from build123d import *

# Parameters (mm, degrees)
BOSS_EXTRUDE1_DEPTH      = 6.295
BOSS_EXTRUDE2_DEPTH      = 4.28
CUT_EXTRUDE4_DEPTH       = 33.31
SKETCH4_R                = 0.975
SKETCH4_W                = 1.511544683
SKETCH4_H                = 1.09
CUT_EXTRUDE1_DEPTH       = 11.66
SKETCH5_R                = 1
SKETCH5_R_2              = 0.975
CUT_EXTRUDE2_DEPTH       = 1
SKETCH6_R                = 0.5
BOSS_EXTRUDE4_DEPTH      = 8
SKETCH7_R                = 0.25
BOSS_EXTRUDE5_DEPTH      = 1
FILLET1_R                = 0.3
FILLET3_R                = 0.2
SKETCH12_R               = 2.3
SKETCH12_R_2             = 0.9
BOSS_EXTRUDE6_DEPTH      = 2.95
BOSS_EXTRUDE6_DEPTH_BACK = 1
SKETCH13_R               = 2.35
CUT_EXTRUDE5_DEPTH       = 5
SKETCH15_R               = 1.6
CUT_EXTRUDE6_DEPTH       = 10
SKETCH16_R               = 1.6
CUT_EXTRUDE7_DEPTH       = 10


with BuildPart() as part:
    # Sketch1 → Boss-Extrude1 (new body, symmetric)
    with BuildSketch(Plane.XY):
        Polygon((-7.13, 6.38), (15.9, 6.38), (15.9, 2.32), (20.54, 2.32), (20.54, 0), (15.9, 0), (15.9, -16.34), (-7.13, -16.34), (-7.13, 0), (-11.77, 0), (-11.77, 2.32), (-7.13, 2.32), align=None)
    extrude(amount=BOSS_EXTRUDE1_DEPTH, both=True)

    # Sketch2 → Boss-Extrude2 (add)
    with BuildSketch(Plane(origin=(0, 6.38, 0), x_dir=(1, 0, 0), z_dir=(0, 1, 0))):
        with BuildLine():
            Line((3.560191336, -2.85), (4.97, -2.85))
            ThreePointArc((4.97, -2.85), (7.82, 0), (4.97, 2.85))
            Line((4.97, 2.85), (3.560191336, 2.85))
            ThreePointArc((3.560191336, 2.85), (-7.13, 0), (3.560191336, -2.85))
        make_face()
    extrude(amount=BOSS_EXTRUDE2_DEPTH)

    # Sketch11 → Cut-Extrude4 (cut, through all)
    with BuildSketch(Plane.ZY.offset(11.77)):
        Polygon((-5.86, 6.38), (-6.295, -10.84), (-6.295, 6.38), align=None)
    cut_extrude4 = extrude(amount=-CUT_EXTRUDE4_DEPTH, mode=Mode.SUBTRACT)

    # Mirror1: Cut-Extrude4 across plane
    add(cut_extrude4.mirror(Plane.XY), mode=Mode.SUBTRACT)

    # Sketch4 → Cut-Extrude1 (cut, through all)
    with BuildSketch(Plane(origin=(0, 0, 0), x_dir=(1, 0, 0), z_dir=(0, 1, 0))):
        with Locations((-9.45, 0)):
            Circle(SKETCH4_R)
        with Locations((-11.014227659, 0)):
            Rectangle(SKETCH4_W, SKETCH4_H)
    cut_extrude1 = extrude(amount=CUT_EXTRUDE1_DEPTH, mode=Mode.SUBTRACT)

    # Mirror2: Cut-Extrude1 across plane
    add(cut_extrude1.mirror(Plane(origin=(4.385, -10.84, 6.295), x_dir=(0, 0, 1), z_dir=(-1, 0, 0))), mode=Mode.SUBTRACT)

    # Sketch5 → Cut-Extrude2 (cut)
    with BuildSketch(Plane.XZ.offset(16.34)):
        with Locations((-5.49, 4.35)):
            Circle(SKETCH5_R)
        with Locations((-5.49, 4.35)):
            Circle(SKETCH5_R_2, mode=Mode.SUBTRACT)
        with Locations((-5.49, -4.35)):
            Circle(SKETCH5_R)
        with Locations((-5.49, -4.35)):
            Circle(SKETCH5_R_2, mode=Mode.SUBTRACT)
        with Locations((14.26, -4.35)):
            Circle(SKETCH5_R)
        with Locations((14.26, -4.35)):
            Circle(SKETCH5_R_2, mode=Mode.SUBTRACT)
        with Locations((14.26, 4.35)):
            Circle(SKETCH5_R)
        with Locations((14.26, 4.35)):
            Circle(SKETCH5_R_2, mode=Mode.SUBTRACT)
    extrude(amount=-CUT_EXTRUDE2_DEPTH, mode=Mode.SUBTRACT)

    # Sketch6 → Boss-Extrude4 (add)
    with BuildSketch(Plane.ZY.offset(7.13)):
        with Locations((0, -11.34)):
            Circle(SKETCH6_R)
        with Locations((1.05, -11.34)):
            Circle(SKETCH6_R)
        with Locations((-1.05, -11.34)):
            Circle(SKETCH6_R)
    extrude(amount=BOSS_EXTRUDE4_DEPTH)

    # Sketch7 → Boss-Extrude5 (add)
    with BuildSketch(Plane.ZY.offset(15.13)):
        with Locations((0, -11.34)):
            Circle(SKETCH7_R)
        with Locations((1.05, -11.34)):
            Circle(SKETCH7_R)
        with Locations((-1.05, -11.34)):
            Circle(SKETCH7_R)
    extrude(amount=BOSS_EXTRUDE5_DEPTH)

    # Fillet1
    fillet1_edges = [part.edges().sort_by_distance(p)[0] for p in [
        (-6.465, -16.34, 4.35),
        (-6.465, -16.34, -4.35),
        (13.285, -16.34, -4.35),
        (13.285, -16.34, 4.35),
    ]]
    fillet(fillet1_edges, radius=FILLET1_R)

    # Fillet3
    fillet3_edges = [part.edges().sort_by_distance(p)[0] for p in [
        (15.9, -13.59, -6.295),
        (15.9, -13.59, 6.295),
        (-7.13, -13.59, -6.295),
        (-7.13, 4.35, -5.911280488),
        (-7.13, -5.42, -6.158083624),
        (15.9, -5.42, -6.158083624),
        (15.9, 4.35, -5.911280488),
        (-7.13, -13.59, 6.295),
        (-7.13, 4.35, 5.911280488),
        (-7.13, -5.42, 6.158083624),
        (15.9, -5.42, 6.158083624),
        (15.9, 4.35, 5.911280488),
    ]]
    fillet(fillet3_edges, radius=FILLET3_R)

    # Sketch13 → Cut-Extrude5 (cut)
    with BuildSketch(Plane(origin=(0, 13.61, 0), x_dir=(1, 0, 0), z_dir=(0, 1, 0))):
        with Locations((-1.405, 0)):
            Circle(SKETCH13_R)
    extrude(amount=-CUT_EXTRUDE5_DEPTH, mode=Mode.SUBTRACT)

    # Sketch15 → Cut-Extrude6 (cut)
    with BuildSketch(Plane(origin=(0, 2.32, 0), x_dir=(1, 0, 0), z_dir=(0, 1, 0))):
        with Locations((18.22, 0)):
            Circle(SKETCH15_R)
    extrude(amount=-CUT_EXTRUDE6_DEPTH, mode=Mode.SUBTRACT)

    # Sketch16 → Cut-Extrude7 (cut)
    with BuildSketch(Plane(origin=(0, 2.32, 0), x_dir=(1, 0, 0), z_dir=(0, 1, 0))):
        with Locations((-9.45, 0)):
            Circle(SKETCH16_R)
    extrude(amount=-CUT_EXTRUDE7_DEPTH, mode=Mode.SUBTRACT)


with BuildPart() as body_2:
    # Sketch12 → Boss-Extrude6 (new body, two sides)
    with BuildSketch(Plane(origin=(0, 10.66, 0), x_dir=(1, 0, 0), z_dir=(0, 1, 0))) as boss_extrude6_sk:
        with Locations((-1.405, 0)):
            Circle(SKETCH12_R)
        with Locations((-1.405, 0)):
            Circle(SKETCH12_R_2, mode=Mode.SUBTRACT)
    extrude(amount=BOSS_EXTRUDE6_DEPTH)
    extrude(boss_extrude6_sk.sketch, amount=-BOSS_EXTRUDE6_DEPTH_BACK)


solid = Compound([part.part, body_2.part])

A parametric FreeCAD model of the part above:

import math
import FreeCAD as App
import Part
import Sketcher


def edges_at(feature, points):
    """Names of the edges that pass closest to the given points."""
    edges = feature.Shape.Edges
    near = lambda p: min(range(len(edges)), key=lambda i: edges[i].distToShape(Part.Vertex(*p))[0])
    return sorted({f"Edge{near(p) + 1}" for p in points})

doc = App.newDocument("Part")
body = doc.addObject("PartDesign::Body", "Body")

# Sketch on XY plane
sketch1 = body.newObject("Sketcher::SketchObject", "Sketch")
sketch1.AttachmentSupport = (doc.getObject("XY_Plane"), [""])
sketch1.MapMode = "FlatFace"
sketch1.addGeometry([
    Part.LineSegment(App.Vector(15.9, 6.4, 0), App.Vector(-7.1, 6.4, 0)),  # 0
    Part.LineSegment(App.Vector(-7.1, 6.4, 0), App.Vector(-7.1, 2.3, 0)),  # 1
    Part.LineSegment(App.Vector(-7.1, 2.3, 0), App.Vector(-11.8, 2.3, 0)),  # 2
    Part.LineSegment(App.Vector(-11.8, 2.3, 0), App.Vector(-11.8, 0, 0)),  # 3
    Part.LineSegment(App.Vector(-11.8, 0, 0), App.Vector(-7.1, 0, 0)),  # 4
    Part.LineSegment(App.Vector(-7.1, 0, 0), App.Vector(-7.1, -16.3, 0)),  # 5
    Part.LineSegment(App.Vector(-7.1, -16.3, 0), App.Vector(15.9, -16.3, 0)),  # 6
    Part.LineSegment(App.Vector(15.9, -16.3, 0), App.Vector(15.9, 0, 0)),  # 7
    Part.LineSegment(App.Vector(15.9, 0, 0), App.Vector(20.5, 0, 0)),  # 8
    Part.LineSegment(App.Vector(20.5, 0, 0), App.Vector(20.5, 2.3, 0)),  # 9
    Part.LineSegment(App.Vector(20.5, 2.3, 0), App.Vector(15.9, 2.3, 0)),  # 10
    Part.LineSegment(App.Vector(15.9, 2.3, 0), App.Vector(15.9, 6.4, 0)),  # 11
], False)
sketch1.addConstraint([
    Sketcher.Constraint("Coincident", 0, 2, 1, 1),
    Sketcher.Constraint("Coincident", 1, 2, 2, 1),
    Sketcher.Constraint("Coincident", 2, 2, 3, 1),
    Sketcher.Constraint("Coincident", 3, 2, 4, 1),
    Sketcher.Constraint("Coincident", 4, 2, 5, 1),
    Sketcher.Constraint("Coincident", 5, 2, 6, 1),
    Sketcher.Constraint("Coincident", 6, 2, 7, 1),
    Sketcher.Constraint("Coincident", 7, 2, 8, 1),
    Sketcher.Constraint("Coincident", 8, 2, 9, 1),
    Sketcher.Constraint("Coincident", 9, 2, 10, 1),
    Sketcher.Constraint("Coincident", 10, 2, 11, 1),
    Sketcher.Constraint("Coincident", 11, 2, 0, 1),
    Sketcher.Constraint("Horizontal", 0),
    Sketcher.Constraint("Vertical", 1),
    Sketcher.Constraint("Horizontal", 2),
    Sketcher.Constraint("Vertical", 3),
    Sketcher.Constraint("Horizontal", 4),
    Sketcher.Constraint("Vertical", 5),
    Sketcher.Constraint("Horizontal", 6),
    Sketcher.Constraint("Vertical", 7),
    Sketcher.Constraint("Horizontal", 8),
    Sketcher.Constraint("Vertical", 9),
    Sketcher.Constraint("Horizontal", 10),
    Sketcher.Constraint("Vertical", 11),
    Sketcher.Constraint("PointOnObject", 3, 2, -1),
    Sketcher.Constraint("PointOnObject", 7, 2, -1),
    Sketcher.Constraint("Horizontal", 2, 2, 9, 2),
    Sketcher.Constraint("Vertical", 1, 2, 4, 2),
    Sketcher.Constraint("Vertical", 7, 2, 10, 2),
    Sketcher.Constraint("Equal", 4, 8),
    Sketcher.Constraint("DistanceX", 0, 2, 0, 1, 23.03),
    Sketcher.Constraint("DistanceX", 2, 2, 2, 1, 4.64),
    Sketcher.Constraint("DistanceY", 1, 2, 1, 1, 4.06),
    Sketcher.Constraint("DistanceY", 3, 2, 3, 1, 2.32),
    Sketcher.Constraint("DistanceY", 5, 2, 5, 1, 16.34),
    Sketcher.Constraint("DistanceX", -1, 1, 6, 2, 15.9),
])
pad1 = body.newObject("PartDesign::Pad", "Pad")
pad1.Profile = sketch1
pad1.Length = 12.59
pad1.Midplane = True

# Sketch on XZ plane
sketch2 = body.newObject("Sketcher::SketchObject", "Sketch001")
sketch2.AttachmentSupport = (doc.getObject("XZ_Plane"), [""])
sketch2.MapMode = "FlatFace"
sketch2.AttachmentOffset = App.Placement(App.Vector(0, 0, -6.38), App.Rotation())
sketch2.addGeometry([
    Part.LineSegment(App.Vector(3.6, 2.9, 0), App.Vector(5, 2.9, 0)),
    Part.ArcOfCircle(Part.Circle(App.Vector(5, 0, 0), App.Vector(0, 0, 1), 2.9), math.radians(-90), math.radians(90)),
    Part.LineSegment(App.Vector(5, -2.9, 0), App.Vector(3.6, -2.9, 0)),
    Part.ArcOfCircle(Part.Circle(App.Vector(-1.4, 0, 0), App.Vector(0, 0, 1), 5.7), math.radians(30), math.radians(330)),
], False)
sketch2.addConstraint([
    Sketcher.Constraint("Tangent", 0, 2, 1, 2),
    Sketcher.Constraint("Tangent", 1, 1, 2, 1),
    Sketcher.Constraint("Coincident", 2, 2, 3, 2),
    Sketcher.Constraint("Coincident", 3, 1, 0, 1),
    Sketcher.Constraint("Horizontal", 0),
    Sketcher.Constraint("Horizontal", 2),
    Sketcher.Constraint("Symmetric", 2, 2, 3, 1, -1),
    Sketcher.Constraint("Radius", 1, 2.85),
    Sketcher.Constraint("Radius", 3, 5.725),
    Sketcher.Constraint("DistanceX", -1, 1, 1, 3, 4.97),
    Sketcher.Constraint("DistanceX", 3, 3, -1, 1, 1.405),
])
pad2 = body.newObject("PartDesign::Pad", "Pad001")
pad2.Profile = sketch2
pad2.Length = 4.28
pad2.Reversed = True

# Sketch on YZ plane
sketch3 = body.newObject("Sketcher::SketchObject", "Sketch002")
sketch3.AttachmentSupport = (doc.getObject("YZ_Plane"), [""])
sketch3.MapMode = "FlatFace"
sketch3.AttachmentOffset = App.Placement(App.Vector(0, 0, -11.77), App.Rotation())
sketch3.addGeometry([
    Part.LineSegment(App.Vector(-10.84, -6.29, 0), App.Vector(6.38, -5.86, 0)),
    Part.LineSegment(App.Vector(6.38, -5.86, 0), App.Vector(6.38, -6.29, 0)),
    Part.LineSegment(App.Vector(6.38, -6.29, 0), App.Vector(-10.84, -6.29, 0)),
], False)
sketch3.addConstraint([
    Sketcher.Constraint("Coincident", 0, 2, 1, 1),
    Sketcher.Constraint("Coincident", 1, 2, 2, 1),
    Sketcher.Constraint("Coincident", 2, 2, 0, 1),
    Sketcher.Constraint("Vertical", 1),
    Sketcher.Constraint("Horizontal", 2),
    Sketcher.Constraint("DistanceX", 2, 2, 2, 1, 17.22),
    Sketcher.Constraint("DistanceY", 1, 2, 1, 1, 0.435),
    Sketcher.Constraint("DistanceX", -1, 1, 0, 2, 6.38),
    Sketcher.Constraint("DistanceY", 0, 2, -1, 1, 5.86),
])
pocket1 = body.newObject("PartDesign::Pocket", "Pocket")
pocket1.Profile = sketch3
pocket1.Type = "ThroughAll"
pocket1.Reversed = True
doc.recompute()

mirrored = body.newObject("PartDesign::Mirrored", "Mirrored")
mirrored.Originals = [pocket1]
mirrored.MirrorPlane = (doc.getObject("XY_Plane"), [""])
body.Tip = mirrored

# Sketch on XZ plane
sketch4 = body.newObject("Sketcher::SketchObject", "Sketch003")
sketch4.AttachmentSupport = (doc.getObject("XZ_Plane"), [""])
sketch4.MapMode = "FlatFace"
sketch4.addGeometry([
    Part.ArcOfCircle(Part.Circle(App.Vector(-9.4, 0, 0), App.Vector(0, 0, 1), 1), math.radians(-146), math.radians(146)),
    Part.LineSegment(App.Vector(-10.3, -0.5, 0), App.Vector(-11.8, -0.5, 0)),
    Part.LineSegment(App.Vector(-11.8, -0.5, 0), App.Vector(-11.8, 0.5, 0)),
    Part.LineSegment(App.Vector(-11.8, 0.5, 0), App.Vector(-10.3, 0.5, 0)),
], False)
sketch4.addConstraint([
    Sketcher.Constraint("Coincident", 0, 1, 1, 1),
    Sketcher.Constraint("Coincident", 1, 2, 2, 1),
    Sketcher.Constraint("Coincident", 2, 2, 3, 1),
    Sketcher.Constraint("Coincident", 3, 2, 0, 2),
    Sketcher.Constraint("Horizontal", 1),
    Sketcher.Constraint("Vertical", 2),
    Sketcher.Constraint("Horizontal", 3),
    Sketcher.Constraint("Symmetric", 0, 1, 3, 2, -1),
    Sketcher.Constraint("Radius", 0, 0.975),
    Sketcher.Constraint("DistanceY", 2, 1, 2, 2, 1.09),
    Sketcher.Constraint("DistanceX", 0, 3, -1, 1, 9.45),
    Sketcher.Constraint("DistanceX", 1, 2, -1, 1, 11.77),
])
pocket2 = body.newObject("PartDesign::Pocket", "Pocket001")
pocket2.Profile = sketch4
pocket2.Type = "ThroughAll"
doc.recompute()

datumplane = body.newObject("PartDesign::Plane", "DatumPlane")
datumplane.AttachmentSupport = (doc.getObject("YZ_Plane"), [""])
datumplane.MapMode = "FlatFace"
datumplane.AttachmentOffset = App.Placement(App.Vector(0, 0, 4.385), App.Rotation())
mirrored2 = body.newObject("PartDesign::Mirrored", "Mirrored001")
mirrored2.Originals = [pocket2]
mirrored2.MirrorPlane = (datumplane, [""])
body.Tip = mirrored2

# Sketch on XZ plane
sketch5 = body.newObject("Sketcher::SketchObject", "Sketch004")
sketch5.AttachmentSupport = (doc.getObject("XZ_Plane"), [""])
sketch5.MapMode = "FlatFace"
sketch5.AttachmentOffset = App.Placement(App.Vector(0, 0, 16.34), App.Rotation())
sketch5.addGeometry([
    Part.Circle(App.Vector(-5.5, 4.3, 0), App.Vector(0, 0, 1), 1),  # 0
    Part.Circle(App.Vector(-5.5, 4.3, 0), App.Vector(0, 0, 1), 1),  # 1
    Part.Circle(App.Vector(-5.5, -4.3, 0), App.Vector(0, 0, 1), 1),  # 2
    Part.Circle(App.Vector(-5.5, -4.3, 0), App.Vector(0, 0, 1), 1),  # 3
    Part.Circle(App.Vector(14.3, -4.3, 0), App.Vector(0, 0, 1), 1),  # 4
    Part.Circle(App.Vector(14.3, -4.3, 0), App.Vector(0, 0, 1), 1),  # 5
    Part.Circle(App.Vector(14.3, 4.3, 0), App.Vector(0, 0, 1), 1),  # 6
    Part.Circle(App.Vector(14.3, 4.3, 0), App.Vector(0, 0, 1), 1),  # 7
], False)
sketch5.addConstraint([
    Sketcher.Constraint("Coincident", 1, 3, 0, 3),
    Sketcher.Constraint("Coincident", 3, 3, 2, 3),
    Sketcher.Constraint("Coincident", 5, 3, 4, 3),
    Sketcher.Constraint("Coincident", 7, 3, 6, 3),
    Sketcher.Constraint("Equal", 0, 2),
    Sketcher.Constraint("Equal", 1, 3),
    Sketcher.Constraint("Equal", 2, 4),
    Sketcher.Constraint("Equal", 3, 5),
    Sketcher.Constraint("Equal", 4, 6),
    Sketcher.Constraint("Equal", 5, 7),
    Sketcher.Constraint("Symmetric", 0, 3, 2, 3, -1),
    Sketcher.Constraint("Symmetric", 4, 3, 6, 3, -1),
    Sketcher.Constraint("Horizontal", 3, 3, 4, 3),
    Sketcher.Constraint("Diameter", 0, 2.0),
    Sketcher.Constraint("Diameter", 1, 1.95),
    Sketcher.Constraint("DistanceY", 2, 3, 0, 3, 8.7),
    Sketcher.Constraint("DistanceX", 0, 3, -1, 1, 5.49),
    Sketcher.Constraint("DistanceX", -1, 1, 4, 3, 14.26),
])
pocket3 = body.newObject("PartDesign::Pocket", "Pocket002")
pocket3.Profile = sketch5
pocket3.Length = 1

# Sketch on YZ plane
sketch6 = body.newObject("Sketcher::SketchObject", "Sketch005")
sketch6.AttachmentSupport = (doc.getObject("YZ_Plane"), [""])
sketch6.MapMode = "FlatFace"
sketch6.AttachmentOffset = App.Placement(App.Vector(0, 0, -7.13), App.Rotation())
sketch6.addGeometry([
    Part.Circle(App.Vector(-11.3, 0, 0), App.Vector(0, 0, 1), 0.5),
    Part.Circle(App.Vector(-11.3, 1.1, 0), App.Vector(0, 0, 1), 0.5),
    Part.Circle(App.Vector(-11.3, -1.1, 0), App.Vector(0, 0, 1), 0.5),
], False)
sketch6.addConstraint([
    Sketcher.Constraint("Equal", 0, 1),
    Sketcher.Constraint("Equal", 1, 2),
    Sketcher.Constraint("Symmetric", 1, 3, 2, 3, -1),
    Sketcher.Constraint("PointOnObject", 0, 3, -1),
    Sketcher.Constraint("Vertical", 0, 3, 1, 3),
    Sketcher.Constraint("Diameter", 0, 1.0),
    Sketcher.Constraint("DistanceY", 2, 3, 1, 3, 2.1),
    Sketcher.Constraint("DistanceX", 0, 3, -1, 1, 11.34),
])
pad3 = body.newObject("PartDesign::Pad", "Pad002")
pad3.Profile = sketch6
pad3.Length = 8
pad3.Reversed = True

# Sketch on YZ plane
sketch7 = body.newObject("Sketcher::SketchObject", "Sketch006")
sketch7.AttachmentSupport = (doc.getObject("YZ_Plane"), [""])
sketch7.MapMode = "FlatFace"
sketch7.AttachmentOffset = App.Placement(App.Vector(0, 0, -15.13), App.Rotation())
sketch7.addGeometry([
    Part.Circle(App.Vector(-11.34, 0, 0), App.Vector(0, 0, 1), 0.25),
    Part.Circle(App.Vector(-11.34, 1.05, 0), App.Vector(0, 0, 1), 0.25),
    Part.Circle(App.Vector(-11.34, -1.05, 0), App.Vector(0, 0, 1), 0.25),
], False)
sketch7.addConstraint([
    Sketcher.Constraint("Equal", 0, 1),
    Sketcher.Constraint("Equal", 1, 2),
    Sketcher.Constraint("Symmetric", 1, 3, 2, 3, -1),
    Sketcher.Constraint("PointOnObject", 0, 3, -1),
    Sketcher.Constraint("Vertical", 0, 3, 1, 3),
    Sketcher.Constraint("Diameter", 0, 0.5),
    Sketcher.Constraint("DistanceY", 2, 3, 1, 3, 2.1),
    Sketcher.Constraint("DistanceX", 0, 3, -1, 1, 11.34),
])
pad4 = body.newObject("PartDesign::Pad", "Pad003")
pad4.Profile = sketch7
pad4.Length = 1
pad4.Reversed = True
doc.recompute()

fillet = body.newObject("PartDesign::Fillet", "Fillet")
fillet.Base = (pad4, edges_at(pad4, [
    (-6.465, -16.34, 4.35),
    (-6.465, -16.34, -4.35),
    (13.285, -16.34, -4.35),
    (13.285, -16.34, 4.35),
]))
fillet.Radius = 0.3
doc.recompute()

fillet2 = body.newObject("PartDesign::Fillet", "Fillet001")
fillet2.Base = (fillet, edges_at(fillet, [
    (15.9, -13.59, -6.295),
    (15.9, -13.59, 6.295),
    (-7.13, -13.59, -6.295),
    (-7.13, 4.35, -5.911),
    (-7.13, -5.42, -6.158),
    (15.9, -5.42, -6.158),
    (15.9, 4.35, -5.911),
    (-7.13, -13.59, 6.295),
    (-7.13, 4.35, 5.911),
    (-7.13, -5.42, 6.158),
    (15.9, -5.42, 6.158),
    (15.9, 4.35, 5.911),
]))
fillet2.Radius = 0.2

# Sketch on XZ plane
sketch8 = body.newObject("Sketcher::SketchObject", "Sketch007")
sketch8.AttachmentSupport = (doc.getObject("XZ_Plane"), [""])
sketch8.MapMode = "FlatFace"
sketch8.AttachmentOffset = App.Placement(App.Vector(0, 0, -13.61), App.Rotation())
sketch8.addGeometry(Part.Circle(App.Vector(-1.4, 0, 0), App.Vector(0, 0, 1), 2.4), False)
sketch8.addConstraint([
    Sketcher.Constraint("PointOnObject", 0, 3, -1),
    Sketcher.Constraint("Diameter", 0, 4.7),
    Sketcher.Constraint("DistanceX", 0, 3, -1, 1, 1.405),
])
pocket4 = body.newObject("PartDesign::Pocket", "Pocket003")
pocket4.Profile = sketch8
pocket4.Length = 5
pocket4.Reversed = True

# Sketch on XZ plane
sketch9 = body.newObject("Sketcher::SketchObject", "Sketch008")
sketch9.AttachmentSupport = (doc.getObject("XZ_Plane"), [""])
sketch9.MapMode = "FlatFace"
sketch9.AttachmentOffset = App.Placement(App.Vector(0, 0, -2.32), App.Rotation())
sketch9.addGeometry(Part.Circle(App.Vector(18.2, 0, 0), App.Vector(0, 0, 1), 1.6), False)
sketch9.addConstraint([
    Sketcher.Constraint("PointOnObject", 0, 3, -1),
    Sketcher.Constraint("Diameter", 0, 3.2),
    Sketcher.Constraint("DistanceX", -1, 1, 0, 3, 18.22),
])
pocket5 = body.newObject("PartDesign::Pocket", "Pocket004")
pocket5.Profile = sketch9
pocket5.Length = 10
pocket5.Reversed = True

# Sketch on XZ plane
sketch10 = body.newObject("Sketcher::SketchObject", "Sketch009")
sketch10.AttachmentSupport = (doc.getObject("XZ_Plane"), [""])
sketch10.MapMode = "FlatFace"
sketch10.AttachmentOffset = App.Placement(App.Vector(0, 0, -2.32), App.Rotation())
sketch10.addGeometry(Part.Circle(App.Vector(-9.4, 0, 0), App.Vector(0, 0, 1), 1.6), False)
sketch10.addConstraint([
    Sketcher.Constraint("PointOnObject", 0, 3, -1),
    Sketcher.Constraint("Diameter", 0, 3.2),
    Sketcher.Constraint("DistanceX", 0, 3, -1, 1, 9.45),
])
pocket6 = body.newObject("PartDesign::Pocket", "Pocket005")
pocket6.Profile = sketch10
pocket6.Length = 10
pocket6.Reversed = True
body2 = doc.addObject("PartDesign::Body", "Body001")

# Sketch on XZ plane
sketch11 = body2.newObject("Sketcher::SketchObject", "Sketch010")
sketch11.AttachmentSupport = (doc.getObject("XZ_Plane001"), [""])
sketch11.MapMode = "FlatFace"
sketch11.AttachmentOffset = App.Placement(App.Vector(0, 0, -10.66), App.Rotation())
sketch11.addGeometry([
    Part.Circle(App.Vector(-1.4, 0, 0), App.Vector(0, 0, 1), 2.3),
    Part.Circle(App.Vector(-1.4, 0, 0), App.Vector(0, 0, 1), 0.9),
], False)
sketch11.addConstraint([
    Sketcher.Constraint("Coincident", 1, 3, 0, 3),
    Sketcher.Constraint("PointOnObject", 0, 3, -1),
    Sketcher.Constraint("Diameter", 0, 4.6),
    Sketcher.Constraint("Diameter", 1, 1.8),
    Sketcher.Constraint("DistanceX", 0, 3, -1, 1, 1.405),
])
pad5 = body2.newObject("PartDesign::Pad", "Pad004")
pad5.Profile = sketch11
pad5.Type = "TwoLengths"
pad5.Length = 2.95
pad5.Length2 = 1
pad5.Reversed = True

doc.recompute()
